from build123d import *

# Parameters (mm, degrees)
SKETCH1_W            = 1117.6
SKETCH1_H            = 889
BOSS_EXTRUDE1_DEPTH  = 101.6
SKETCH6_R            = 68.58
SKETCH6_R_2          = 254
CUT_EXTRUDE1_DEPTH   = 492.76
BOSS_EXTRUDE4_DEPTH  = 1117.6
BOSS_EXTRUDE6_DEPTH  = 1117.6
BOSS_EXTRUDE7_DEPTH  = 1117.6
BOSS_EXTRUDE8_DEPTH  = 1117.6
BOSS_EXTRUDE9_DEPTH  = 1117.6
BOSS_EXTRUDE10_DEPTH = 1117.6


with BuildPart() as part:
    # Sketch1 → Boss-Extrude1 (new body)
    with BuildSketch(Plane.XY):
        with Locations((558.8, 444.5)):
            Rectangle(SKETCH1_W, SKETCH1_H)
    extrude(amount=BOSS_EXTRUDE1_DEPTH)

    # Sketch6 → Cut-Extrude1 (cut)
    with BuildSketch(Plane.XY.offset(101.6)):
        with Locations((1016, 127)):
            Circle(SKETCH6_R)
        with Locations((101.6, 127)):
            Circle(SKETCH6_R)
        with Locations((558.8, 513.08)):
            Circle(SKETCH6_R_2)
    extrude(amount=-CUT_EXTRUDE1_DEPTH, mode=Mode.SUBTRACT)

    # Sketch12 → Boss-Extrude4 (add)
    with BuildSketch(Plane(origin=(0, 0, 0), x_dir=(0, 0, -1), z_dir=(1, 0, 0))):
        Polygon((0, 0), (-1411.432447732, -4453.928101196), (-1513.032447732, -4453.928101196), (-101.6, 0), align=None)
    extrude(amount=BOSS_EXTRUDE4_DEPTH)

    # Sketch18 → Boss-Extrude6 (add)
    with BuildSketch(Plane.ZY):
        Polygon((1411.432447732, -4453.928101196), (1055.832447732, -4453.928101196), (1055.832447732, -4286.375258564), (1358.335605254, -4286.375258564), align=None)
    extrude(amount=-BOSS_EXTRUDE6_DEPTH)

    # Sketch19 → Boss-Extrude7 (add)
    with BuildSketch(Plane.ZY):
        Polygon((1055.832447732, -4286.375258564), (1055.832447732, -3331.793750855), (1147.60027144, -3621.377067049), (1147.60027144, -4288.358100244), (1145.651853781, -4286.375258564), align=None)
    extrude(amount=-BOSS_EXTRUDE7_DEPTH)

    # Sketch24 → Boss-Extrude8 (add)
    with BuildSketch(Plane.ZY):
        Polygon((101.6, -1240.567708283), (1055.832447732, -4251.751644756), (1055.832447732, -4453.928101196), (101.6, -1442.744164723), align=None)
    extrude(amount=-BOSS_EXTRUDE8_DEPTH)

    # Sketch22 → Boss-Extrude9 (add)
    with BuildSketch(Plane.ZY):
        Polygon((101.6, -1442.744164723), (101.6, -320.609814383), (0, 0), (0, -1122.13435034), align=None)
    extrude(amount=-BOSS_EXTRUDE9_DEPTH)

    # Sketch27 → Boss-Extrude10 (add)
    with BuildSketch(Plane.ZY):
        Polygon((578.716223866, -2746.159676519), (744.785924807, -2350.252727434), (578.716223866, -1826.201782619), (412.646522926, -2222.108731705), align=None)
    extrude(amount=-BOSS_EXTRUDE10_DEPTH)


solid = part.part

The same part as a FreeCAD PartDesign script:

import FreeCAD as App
import Part
import Sketcher

V = App.Vector
Q = App.Units.Quantity

doc = App.newDocument("Part")
body = doc.addObject("PartDesign::Body", "Body")

# Sketch on XY plane
sketch1 = body.newObject("Sketcher::SketchObject", "Sketch")
sketch1.AttachmentSupport = (doc.getObject("XY_Plane"), [""])
sketch1.MapMode = "FlatFace"
sketch1.addGeometry([
    Part.LineSegment(V(0, 889, 0), V(0, 0, 0)),
    Part.LineSegment(V(0, 0, 0), V(1117.6, 0, 0)),
    Part.LineSegment(V(1117.6, 0, 0), V(1117.6, 889, 0)),
    Part.LineSegment(V(1117.6, 889, 0), V(0, 889, 0)),
], False)
sketch1.addConstraint([
    Sketcher.Constraint("Coincident", 0, 2, 1, 1),
    Sketcher.Constraint("Coincident", 1, 2, 2, 1),
    Sketcher.Constraint("Coincident", 2, 2, 3, 1),
    Sketcher.Constraint("Coincident", 3, 2, 0, 1),
    Sketcher.Constraint("Vertical", 0),
    Sketcher.Constraint("Horizontal", 1),
    Sketcher.Constraint("Vertical", 2),
    Sketcher.Constraint("Horizontal", 3),
    Sketcher.Constraint("Coincident", 0, 2, -1, 1),
    Sketcher.Constraint("DistanceX", 1, 1, 1, 2, Q("44 in")),
    Sketcher.Constraint("DistanceY", 0, 2, 0, 1, Q("35 in")),
])
pad1 = body.newObject("PartDesign::Pad", "Pad")
pad1.Profile = sketch1
pad1.Length = Q("4 in")

# Sketch on XY plane
sketch2 = body.newObject("Sketcher::SketchObject", "Sketch001")
sketch2.AttachmentSupport = (doc.getObject("XY_Plane"), [""])
sketch2.MapMode = "FlatFace"
sketch2.AttachmentOffset = App.Placement(V(0, 0, 4 * 25.4), App.Rotation())
sketch2.addGeometry([
    Part.Circle(V(1016, 127, 0), V(0, 0, 1), 68.58),
    Part.Circle(V(101.6, 127, 0), V(0, 0, 1), 68.58),
    Part.Circle(V(558.8, 513.08, 0), V(0, 0, 1), 254),
], False)
sketch2.addConstraint([
    Sketcher.Constraint("Equal", 0, 1),
    Sketcher.Constraint("Horizontal", 0, 3, 1, 3),
    Sketcher.Constraint("Diameter", 2, Q("20 in")),
    Sketcher.Constraint("Diameter", 0, Q("5.4 in")),
    Sketcher.Constraint("DistanceX", -1, 1, 0, 3, Q("40 in")),
    Sketcher.Constraint("DistanceY", -1, 1, 0, 3, Q("5 in")),
    Sketcher.Constraint("DistanceX", -1, 1, 1, 3, Q("4 in")),
    Sketcher.Constraint("DistanceX", -1, 1, 2, 3, Q("22 in")),
    Sketcher.Constraint("DistanceY", -1, 1, 2, 3, Q("20.2 in")),
])
pocket1 = body.newObject("PartDesign::Pocket", "Pocket")
pocket1.Profile = sketch2
pocket1.Length = Q("19.4 in")

# Sketch on YZ plane
sketch3 = body.newObject("Sketcher::SketchObject", "Sketch002")
sketch3.AttachmentSupport = (doc.getObject("YZ_Plane"), [""])
sketch3.MapMode = "FlatFace"
sketch3.addGeometry([
    Part.LineSegment(V(-4453.928101, 1411.432448, 0), V(0, 0, 0)),
    Part.LineSegment(V(0, 0, 0), V(0, 101.6, 0)),
    Part.LineSegment(V(0, 101.6, 0), V(-4453.928101, 1513.032448, 0)),
    Part.LineSegment(V(-4453.928101, 1513.032448, 0), V(-4453.928101, 1411.432448, 0)),
], False)
sketch3.addConstraint([
    Sketcher.Constraint("Coincident", 0, 2, 1, 1),
    Sketcher.Constraint("Coincident", 1, 2, 2, 1),
    Sketcher.Constraint("Coincident", 2, 2, 3, 1),
    Sketcher.Constraint("Coincident", 3, 2, 0, 1),
    Sketcher.Constraint("Vertical", 1),
    Sketcher.Constraint("Vertical", 3),
    Sketcher.Constraint("Coincident", 0, 2, -1, 1),
    Sketcher.Constraint("Parallel", 0, 2),
    Sketcher.Constraint("DistanceY", 1, 1, 1, 2, Q("4 in")),
    Sketcher.Constraint("DistanceX", 2, 2, -1, 1, Q("175.3515 in")),
    Sketcher.Constraint("Distance", 0, Q("4672.217577 mm")),
])
pad2 = body.newObject("PartDesign::Pad", "Pad001")
pad2.Profile = sketch3
pad2.Length = Q("44 in")

# Sketch on YZ plane
sketch4 = body.newObject("Sketcher::SketchObject", "Sketch003")
sketch4.AttachmentSupport = (doc.getObject("YZ_Plane"), [""])
sketch4.MapMode = "FlatFace"
sketch4.addGeometry([
    Part.LineSegment(V(-4453.928101, 1055.832448, 0), V(-4453.928101, 1411.432448, 0)),
    Part.LineSegment(V(-4453.928101, 1411.432448, 0), V(-4286.375259, 1358.335605, 0)),
    Part.LineSegment(V(-4286.375259, 1358.335605, 0), V(-4286.375259, 1055.832448, 0)),
    Part.LineSegment(V(-4286.375259, 1055.832448, 0), V(-4453.928101, 1055.832448, 0)),
], False)
sketch4.addConstraint([
    Sketcher.Constraint("Coincident", 0, 2, 1, 1),
    Sketcher.Constraint("Coincident", 1, 2, 2, 1),
    Sketcher.Constraint("Coincident", 2, 2, 3, 1),
    Sketcher.Constraint("Coincident", 3, 2, 0, 1),
    Sketcher.Constraint("Vertical", 0),
    Sketcher.Constraint("Vertical", 2),
    Sketcher.Constraint("Horizontal", 3),
    Sketcher.Constraint("DistanceY", 0, 1, 0, 2, Q("14 in")),
    Sketcher.Constraint("DistanceX", 0, 2, -1, 1, Q("175.3515 in")),
    Sketcher.Constraint("Distance", 1, Q("175.7647 mm")),
    Sketcher.Constraint("DistanceX", 3, 2, 3, 1, Q("167.552843 mm")),
    Sketcher.Constraint("DistanceY", -1, 1, 0, 2, Q("1411.432448 mm")),
])
pad3 = body.newObject("PartDesign::Pad", "Pad002")
pad3.Profile = sketch4
pad3.Length = Q("44 in")

# Sketch on YZ plane
sketch5 = body.newObject("Sketcher::SketchObject", "Sketch004")
sketch5.AttachmentSupport = (doc.getObject("YZ_Plane"), [""])
sketch5.MapMode = "FlatFace"
sketch5.addGeometry([
    Part.LineSegment(V(-3331.793751, 1055.832448, 0), V(-4286.375259, 1055.832448, 0)),  # 0
    Part.LineSegment(V(-4286.375259, 1055.832448, 0), V(-4286.375259, 1145.651854, 0)),  # 1
    Part.LineSegment(V(-4286.375259, 1145.651854, 0), V(-4288.3581, 1147.600271, 0)),  # 2
    Part.LineSegment(V(-4288.3581, 1147.600271, 0), V(-3621.377067, 1147.600271, 0)),  # 3
    Part.LineSegment(V(-3621.377067, 1147.600271, 0), V(-3331.793751, 1055.832448, 0)),  # 4
], False)
sketch5.addConstraint([
    Sketcher.Constraint("Coincident", 0, 2, 1, 1),
    Sketcher.Constraint("Coincident", 1, 2, 2, 1),
    Sketcher.Constraint("Coincident", 2, 2, 3, 1),
    Sketcher.Constraint("Coincident", 3, 2, 4, 1),
    Sketcher.Constraint("Coincident", 4, 2, 0, 1),
    Sketcher.Constraint("Horizontal", 0),
    Sketcher.Constraint("Vertical", 1),
    Sketcher.Constraint("Horizontal", 3),
    Sketcher.Constraint("DistanceX", 2, 2, -1, 1, Q("4288.3581 mm")),
    Sketcher.Constraint("DistanceX", 0, 2, 0, 1, Q("954.581508 mm")),
    Sketcher.Constraint("DistanceX", 3, 1, 3, 2, Q("666.981033 mm")),
    Sketcher.Constraint("DistanceY", 1, 1, 1, 2, Q("89.819406 mm")),
    Sketcher.Constraint("DistanceX", 0, 2, -1, 1, Q("4286.375259 mm")),
    Sketcher.Constraint("DistanceY", -1, 1, 2, 2, Q("1147.600271 mm")),
    Sketcher.Constraint("Distance", 2, Q("2.779927 mm")),
])
pad4 = body.newObject("PartDesign::Pad", "Pad003")
pad4.Profile = sketch5
pad4.Length = Q("44 in")

# Sketch on YZ plane
sketch6 = body.newObject("Sketcher::SketchObject", "Sketch005")
sketch6.AttachmentSupport = (doc.getObject("YZ_Plane"), [""])
sketch6.MapMode = "FlatFace"
sketch6.addGeometry([
    Part.LineSegment(V(-4251.751645, 1055.832448, 0), V(-1240.567708, 101.6, 0)),
    Part.LineSegment(V(-1240.567708, 101.6, 0), V(-1442.744165, 101.6, 0)),
    Part.LineSegment(V(-1442.744165, 101.6, 0), V(-4453.928101, 1055.832448, 0)),
    Part.LineSegment(V(-4453.928101, 1055.832448, 0), V(-4251.751645, 1055.832448, 0)),
], False)
sketch6.addConstraint([
    Sketcher.Constraint("Coincident", 0, 2, 1, 1),
    Sketcher.Constraint("Coincident", 1, 2, 2, 1),
    Sketcher.Constraint("Coincident", 2, 2, 3, 1),
    Sketcher.Constraint("Coincident", 3, 2, 0, 1),
    Sketcher.Constraint("Horizontal", 1),
    Sketcher.Constraint("Horizontal", 3),
    Sketcher.Constraint("Parallel", 0, 2),
    Sketcher.Constraint("DistanceY", -1, 1, 0, 2, Q("4 in")),
    Sketcher.Constraint("DistanceX", 2, 2, -1, 1, Q("175.3515 in")),
    Sketcher.Constraint("DistanceX", 1, 2, 1, 1, Q("202.176456 mm")),
    Sketcher.Constraint("DistanceX", 0, 2, -1, 1, Q("1240.567708 mm")),
    Sketcher.Constraint("Distance", 0, Q("3158.763724 mm")),
])
pad5 = body.newObject("PartDesign::Pad", "Pad004")
pad5.Profile = sketch6
pad5.Length = Q("44 in")

# Sketch on YZ plane
sketch7 = body.newObject("Sketcher::SketchObject", "Sketch006")
sketch7.AttachmentSupport = (doc.getObject("YZ_Plane"), [""])
sketch7.MapMode = "FlatFace"
sketch7.addGeometry([
    Part.LineSegment(V(-1442.744165, 101.6, 0), V(-320.609814, 101.6, 0)),
    Part.LineSegment(V(-320.609814, 101.6, 0), V(0, 0, 0)),
    Part.LineSegment(V(0, 0, 0), V(-1122.13435, 0, 0)),
    Part.LineSegment(V(-1122.13435, 0, 0), V(-1442.744165, 101.6, 0)),
], False)
sketch7.addConstraint([
    Sketcher.Constraint("Coincident", 0, 2, 1, 1),
    Sketcher.Constraint("Coincident", 1, 2, 2, 1),
    Sketcher.Constraint("Coincident", 2, 2, 3, 1),
    Sketcher.Constraint("Coincident", 3, 2, 0, 1),
    Sketcher.Constraint("Horizontal", 0),
    Sketcher.Constraint("Horizontal", 2),
    Sketcher.Constraint("Coincident", 1, 2, -1, 1),
    Sketcher.Constraint("Parallel", 1, 3),
    Sketcher.Constraint("DistanceY", -1, 1, 0, 2, Q("4 in")),
    Sketcher.Constraint("DistanceX", 0, 1, 0, 2, Q("1122.13435 mm")),
    Sketcher.Constraint("Distance", 1, Q("336.323078 mm")),
])
pad6 = body.newObject("PartDesign::Pad", "Pad005")
pad6.Profile = sketch7
pad6.Length = Q("44 in")

# Sketch on YZ plane
sketch8 = body.newObject("Sketcher::SketchObject", "Sketch007")
sketch8.AttachmentSupport = (doc.getObject("YZ_Plane"), [""])
sketch8.MapMode = "FlatFace"
sketch8.addGeometry([
    Part.LineSegment(V(-2746.159677, 578.716224, 0), V(-2350.252727, 744.785925, 0)),
    Part.LineSegment(V(-2350.252727, 744.785925, 0), V(-1826.201783, 578.716224, 0)),
    Part.LineSegment(V(-1826.201783, 578.716224, 0), V(-2222.108732, 412.646523, 0)),
    Part.LineSegment(V(-2222.108732, 412.646523, 0), V(-2746.159677, 578.716224, 0)),
], False)
sketch8.addConstraint([
    Sketcher.Constraint("Coincident", 0, 2, 1, 1),
    Sketcher.Constraint("Coincident", 1, 2, 2, 1),
    Sketcher.Constraint("Coincident", 2, 2, 3, 1),
    Sketcher.Constraint("Coincident", 3, 2, 0, 1),
    Sketcher.Constraint("Parallel", 0, 2),
    Sketcher.Constraint("Parallel", 1, 3),
    Sketcher.Constraint("Horizontal", 1, 2, 3, 2),
    Sketcher.Constraint("DistanceY", 1, 2, 0, 2, Q("166.069701 mm")),
    Sketcher.Constraint("Distance", 0, Q("429.32675 mm")),
    Sketcher.Constraint("Distance", 1, Q("549.734971 mm")),
    Sketcher.Constraint("DistanceX", 2, 2, -1, 1, Q("2222.108732 mm")),
    Sketcher.Constraint("DistanceY", -1, 1, 0, 2, Q("744.785925 mm")),
])
pad7 = body.newObject("PartDesign::Pad", "Pad006")
pad7.Profile = sketch8
pad7.Length = Q("44 in")

doc.recompute()
